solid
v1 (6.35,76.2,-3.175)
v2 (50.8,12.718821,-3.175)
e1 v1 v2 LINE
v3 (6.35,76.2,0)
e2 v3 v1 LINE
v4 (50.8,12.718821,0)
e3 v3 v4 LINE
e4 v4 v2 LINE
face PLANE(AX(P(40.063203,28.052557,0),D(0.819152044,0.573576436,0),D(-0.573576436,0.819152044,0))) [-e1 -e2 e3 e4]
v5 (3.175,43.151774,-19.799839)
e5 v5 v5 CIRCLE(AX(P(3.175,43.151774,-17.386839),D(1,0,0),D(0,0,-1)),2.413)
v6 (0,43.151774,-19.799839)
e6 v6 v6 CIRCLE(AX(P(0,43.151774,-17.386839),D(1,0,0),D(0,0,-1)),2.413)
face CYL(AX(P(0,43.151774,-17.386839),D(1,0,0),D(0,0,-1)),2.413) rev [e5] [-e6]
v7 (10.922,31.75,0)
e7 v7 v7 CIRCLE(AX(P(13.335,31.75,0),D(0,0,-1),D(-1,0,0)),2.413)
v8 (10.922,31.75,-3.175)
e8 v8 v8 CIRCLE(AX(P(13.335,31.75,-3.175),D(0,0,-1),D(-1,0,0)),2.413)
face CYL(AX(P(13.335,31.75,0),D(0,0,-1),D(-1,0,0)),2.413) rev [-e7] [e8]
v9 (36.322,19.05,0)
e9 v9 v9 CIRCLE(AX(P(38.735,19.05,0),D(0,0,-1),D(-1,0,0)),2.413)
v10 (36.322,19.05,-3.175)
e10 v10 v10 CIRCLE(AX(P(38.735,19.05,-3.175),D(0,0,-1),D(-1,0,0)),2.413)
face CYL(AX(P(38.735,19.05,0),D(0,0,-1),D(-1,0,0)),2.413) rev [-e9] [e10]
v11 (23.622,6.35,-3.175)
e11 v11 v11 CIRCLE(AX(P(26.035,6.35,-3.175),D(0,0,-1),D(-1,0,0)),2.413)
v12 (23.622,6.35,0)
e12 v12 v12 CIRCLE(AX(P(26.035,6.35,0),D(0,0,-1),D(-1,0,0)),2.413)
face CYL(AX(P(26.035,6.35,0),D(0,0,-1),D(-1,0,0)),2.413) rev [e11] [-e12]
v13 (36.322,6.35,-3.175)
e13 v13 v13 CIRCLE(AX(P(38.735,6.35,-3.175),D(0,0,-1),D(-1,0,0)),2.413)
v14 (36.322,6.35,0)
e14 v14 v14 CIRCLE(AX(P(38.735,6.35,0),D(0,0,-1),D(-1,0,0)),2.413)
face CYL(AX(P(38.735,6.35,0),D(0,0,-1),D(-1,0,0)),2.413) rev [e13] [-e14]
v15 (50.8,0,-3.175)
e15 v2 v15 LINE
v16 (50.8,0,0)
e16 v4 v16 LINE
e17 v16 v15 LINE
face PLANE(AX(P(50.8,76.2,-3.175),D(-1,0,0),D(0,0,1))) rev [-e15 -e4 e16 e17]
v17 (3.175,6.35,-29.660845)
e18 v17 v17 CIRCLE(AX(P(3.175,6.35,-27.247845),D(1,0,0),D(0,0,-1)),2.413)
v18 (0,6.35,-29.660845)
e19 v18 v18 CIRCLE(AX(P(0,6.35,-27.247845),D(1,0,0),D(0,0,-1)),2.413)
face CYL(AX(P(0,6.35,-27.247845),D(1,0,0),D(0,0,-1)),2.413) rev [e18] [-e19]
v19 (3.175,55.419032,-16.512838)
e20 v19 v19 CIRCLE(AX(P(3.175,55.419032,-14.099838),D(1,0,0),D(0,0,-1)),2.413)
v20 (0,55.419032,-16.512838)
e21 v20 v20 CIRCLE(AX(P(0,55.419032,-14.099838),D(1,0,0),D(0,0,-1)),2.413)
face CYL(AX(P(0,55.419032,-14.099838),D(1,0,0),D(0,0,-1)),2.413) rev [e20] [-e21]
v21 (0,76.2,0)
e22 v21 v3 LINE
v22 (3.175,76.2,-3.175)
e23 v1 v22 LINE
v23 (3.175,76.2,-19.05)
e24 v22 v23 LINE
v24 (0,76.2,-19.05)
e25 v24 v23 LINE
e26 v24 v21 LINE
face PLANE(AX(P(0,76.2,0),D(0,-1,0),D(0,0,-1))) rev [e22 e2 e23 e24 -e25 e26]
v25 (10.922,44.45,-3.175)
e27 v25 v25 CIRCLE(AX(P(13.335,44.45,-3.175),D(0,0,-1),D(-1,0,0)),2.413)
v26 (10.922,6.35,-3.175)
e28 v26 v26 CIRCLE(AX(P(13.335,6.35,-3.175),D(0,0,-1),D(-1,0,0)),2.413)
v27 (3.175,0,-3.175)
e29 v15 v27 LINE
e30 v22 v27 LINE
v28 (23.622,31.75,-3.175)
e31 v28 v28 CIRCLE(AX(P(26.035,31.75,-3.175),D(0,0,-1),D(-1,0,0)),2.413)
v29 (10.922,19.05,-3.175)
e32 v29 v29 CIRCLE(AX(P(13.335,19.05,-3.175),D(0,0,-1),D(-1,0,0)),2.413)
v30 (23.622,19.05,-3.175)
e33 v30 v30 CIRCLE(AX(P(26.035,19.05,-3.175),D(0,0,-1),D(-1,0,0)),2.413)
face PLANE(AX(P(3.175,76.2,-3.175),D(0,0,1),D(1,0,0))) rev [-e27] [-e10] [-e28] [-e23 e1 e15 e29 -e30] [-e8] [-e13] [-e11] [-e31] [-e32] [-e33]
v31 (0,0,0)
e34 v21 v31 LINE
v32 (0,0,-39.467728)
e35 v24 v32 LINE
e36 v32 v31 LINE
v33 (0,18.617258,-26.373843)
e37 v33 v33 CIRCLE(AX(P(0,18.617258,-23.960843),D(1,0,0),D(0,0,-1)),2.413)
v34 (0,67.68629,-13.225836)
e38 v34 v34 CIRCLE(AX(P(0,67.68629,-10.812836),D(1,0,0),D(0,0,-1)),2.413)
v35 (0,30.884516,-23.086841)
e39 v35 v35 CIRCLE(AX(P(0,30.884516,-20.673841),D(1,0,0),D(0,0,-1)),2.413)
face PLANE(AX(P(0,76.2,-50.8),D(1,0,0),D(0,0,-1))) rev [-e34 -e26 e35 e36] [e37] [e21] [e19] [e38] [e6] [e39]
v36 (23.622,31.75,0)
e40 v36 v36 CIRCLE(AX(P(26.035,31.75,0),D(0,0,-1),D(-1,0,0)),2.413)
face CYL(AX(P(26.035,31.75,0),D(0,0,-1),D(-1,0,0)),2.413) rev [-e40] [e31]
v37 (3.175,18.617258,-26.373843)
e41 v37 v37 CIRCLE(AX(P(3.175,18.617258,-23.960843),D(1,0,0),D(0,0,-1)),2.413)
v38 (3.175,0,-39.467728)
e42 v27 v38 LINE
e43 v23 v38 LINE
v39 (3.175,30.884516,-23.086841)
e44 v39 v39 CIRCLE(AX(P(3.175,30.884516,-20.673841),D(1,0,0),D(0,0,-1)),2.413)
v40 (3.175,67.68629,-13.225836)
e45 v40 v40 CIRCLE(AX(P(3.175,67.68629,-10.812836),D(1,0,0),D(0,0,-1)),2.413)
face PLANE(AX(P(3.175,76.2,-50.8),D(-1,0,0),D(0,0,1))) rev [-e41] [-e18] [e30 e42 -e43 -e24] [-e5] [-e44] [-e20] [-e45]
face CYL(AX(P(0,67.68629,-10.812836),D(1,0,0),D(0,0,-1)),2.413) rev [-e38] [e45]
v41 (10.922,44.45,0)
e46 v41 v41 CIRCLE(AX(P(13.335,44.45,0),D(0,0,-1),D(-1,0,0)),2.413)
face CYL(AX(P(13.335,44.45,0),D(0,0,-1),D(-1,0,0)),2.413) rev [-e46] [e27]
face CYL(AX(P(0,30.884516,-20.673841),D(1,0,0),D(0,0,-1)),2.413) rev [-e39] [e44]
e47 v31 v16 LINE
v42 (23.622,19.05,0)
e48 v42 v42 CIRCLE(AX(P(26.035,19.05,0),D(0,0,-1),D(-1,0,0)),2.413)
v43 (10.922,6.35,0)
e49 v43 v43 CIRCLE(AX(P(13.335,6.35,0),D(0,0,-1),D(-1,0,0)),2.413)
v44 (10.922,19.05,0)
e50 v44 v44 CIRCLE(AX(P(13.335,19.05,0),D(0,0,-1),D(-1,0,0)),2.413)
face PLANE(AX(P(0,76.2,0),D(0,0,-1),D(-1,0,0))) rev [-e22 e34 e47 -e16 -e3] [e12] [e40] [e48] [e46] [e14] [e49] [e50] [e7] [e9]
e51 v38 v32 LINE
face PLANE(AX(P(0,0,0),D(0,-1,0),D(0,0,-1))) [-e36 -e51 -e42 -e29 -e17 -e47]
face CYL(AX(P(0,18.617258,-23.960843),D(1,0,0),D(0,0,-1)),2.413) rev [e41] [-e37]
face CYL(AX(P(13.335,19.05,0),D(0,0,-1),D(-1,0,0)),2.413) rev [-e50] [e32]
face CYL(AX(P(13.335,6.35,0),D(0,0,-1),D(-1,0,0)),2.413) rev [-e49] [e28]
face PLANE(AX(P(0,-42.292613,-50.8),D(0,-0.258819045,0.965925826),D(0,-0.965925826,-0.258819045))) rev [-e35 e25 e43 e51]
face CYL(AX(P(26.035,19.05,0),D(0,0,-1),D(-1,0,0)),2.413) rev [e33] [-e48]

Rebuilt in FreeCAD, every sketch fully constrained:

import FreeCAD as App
import Part
import Sketcher

V = App.Vector
Q = App.Units.Quantity


def add_polygon(sketch, points):
    """Adds a closed chain of lines whose ends are joined by coincident constraints."""
    first, n = sketch.GeometryCount, len(points)
    for a, b in zip(points, points[1:] + points[:1]):
        sketch.addGeometry(Part.LineSegment(App.Vector(*a, 0), App.Vector(*b, 0)), False)
    for i in range(n):
        sketch.addConstraint(Sketcher.Constraint("Coincident", first + i, 2, first + (i + 1) % n, 1))

doc = App.newDocument("Part")
body = doc.addObject("PartDesign::Body", "Body")

# Sketch on XZ plane
sketch1 = body.newObject("Sketcher::SketchObject", "Sketch")
sketch1.AttachmentSupport = (doc.getObject("XZ_Plane"), [""])
sketch1.MapMode = "FlatFace"
add_polygon(sketch1, [(0, -50.8), (0, 0), (50.8, 0), (50.8, -3.2), (3.2, -3.2), (3.2, -50.8)])  # lines 0-5
sketch1.addConstraint([
    Sketcher.Constraint("Vertical", 0),
    Sketcher.Constraint("Horizontal", 1),
    Sketcher.Constraint("Vertical", 2),
    Sketcher.Constraint("Horizontal", 3),
    Sketcher.Constraint("Vertical", 4),
    Sketcher.Constraint("Horizontal", 5),
    Sketcher.Constraint("Coincident", 0, 2, -1, 1),
    Sketcher.Constraint("Equal", 1, 0),
    Sketcher.Constraint("Equal", 5, 2),
    Sketcher.Constraint("DistanceX", 1, 1, 1, 2, Q("2 in")),
    Sketcher.Constraint("DistanceX", 3, 2, 3, 1, Q("1.875 in")),
])
pad1 = body.newObject("PartDesign::Pad", "Pad")
pad1.Profile = sketch1
pad1.Length = Q("3 in")
pad1.Reversed = True

# Sketch on XY plane
sketch2 = body.newObject("Sketcher::SketchObject", "Sketch001")
sketch2.AttachmentSupport = (doc.getObject("XY_Plane"), [""])
sketch2.MapMode = "FlatFace"
sketch2.AttachmentOffset = App.Placement(V(0, 0, -0.125 * 25.4), App.Rotation())
add_polygon(sketch2, [(50.8, 12.7), (6.3, 76.2), (50.8, 76.2)])  # lines 0-2
sketch2.addGeometry(Part.Circle(V(13.3, 6.3, 0), V(0, 0, 1), 2.4), False)  # 3
sketch2.addGeometry(Part.Circle(V(26, 6.3, 0), V(0, 0, 1), 2.4), False)  # 4
sketch2.addGeometry(Part.Circle(V(13.3, 19.1, 0), V(0, 0, 1), 2.4), False)  # 5
sketch2.addGeometry(Part.Circle(V(13.3, 31.8, 0), V(0, 0, 1), 2.4), False)  # 6
sketch2.addGeometry(Part.Circle(V(13.3, 44.5, 0), V(0, 0, 1), 2.4), False)  # 7
sketch2.addGeometry(Part.Circle(V(26, 19.1, 0), V(0, 0, 1), 2.4), False)  # 8
sketch2.addGeometry(Part.Circle(V(26, 31.8, 0), V(0, 0, 1), 2.4), False)  # 9
sketch2.addGeometry(Part.Circle(V(38.7, 19.1, 0), V(0, 0, 1), 2.4), False)  # 10
sketch2.addGeometry(Part.Circle(V(38.7, 6.3, 0), V(0, 0, 1), 2.4), False)  # 11
sketch2.addConstraint([
    Sketcher.Constraint("Horizontal", 1),
    Sketcher.Constraint("Vertical", 2),
    Sketcher.Constraint("Equal", 3, 4),
    Sketcher.Constraint("Equal", 4, 5),
    Sketcher.Constraint("Equal", 5, 6),
    Sketcher.Constraint("Equal", 6, 7),
    Sketcher.Constraint("Equal", 7, 8),
    Sketcher.Constraint("Equal", 8, 9),
    Sketcher.Constraint("Equal", 9, 10),
    Sketcher.Constraint("Equal", 10, 11),
    Sketcher.Constraint("Horizontal", 3, 3, 4, 3),
    Sketcher.Constraint("Horizontal", 5, 3, 8, 3),
    Sketcher.Constraint("Horizontal", 6, 3, 9, 3),
    Sketcher.Constraint("Horizontal", 8, 3, 10, 3),
    Sketcher.Constraint("Horizontal", 4, 3, 11, 3),
    Sketcher.Constraint("Vertical", 3, 3, 5, 3),
    Sketcher.Constraint("Vertical", 5, 3, 6, 3),
    Sketcher.Constraint("Vertical", 6, 3, 7, 3),
    Sketcher.Constraint("Vertical", 4, 3, 8, 3),
    Sketcher.Constraint("Vertical", 8, 3, 9, 3),
    Sketcher.Constraint("Vertical", 10, 3, 11, 3),
    Sketcher.Constraint("Diameter", 3, Q("0.19 in")),
    Sketcher.Constraint("DistanceY", -1, 1, 0, 2, Q("3 in")),
    Sketcher.Constraint("DistanceX", -1, 1, 1, 2, Q("2 in")),
    Sketcher.Constraint("Angle", 0, Q("125 deg")),
    Sketcher.Constraint("DistanceY", 3, 3, 6, 3, Q("1 in")),
    Sketcher.Constraint("DistanceY", 5, 3, 7, 3, Q("1 in")),
    Sketcher.Constraint("DistanceX", 5, 3, 10, 3, Q("1 in")),
    Sketcher.Constraint("DistanceX", 1, 1, 1, 2, Q("1.75 in")),
    Sketcher.Constraint("DistanceX", 3, 3, 4, 3, Q("0.5 in")),
    Sketcher.Constraint("DistanceY", 3, 3, 5, 3, Q("0.5 in")),
    Sketcher.Constraint("DistanceY", -1, 1, 3, 3, Q("0.25 in")),
    Sketcher.Constraint("DistanceX", -1, 1, 3, 3, Q("0.525 in")),
])
pocket1 = body.newObject("PartDesign::Pocket", "Pocket")
pocket1.Profile = sketch2
pocket1.Length = Q("0.125 in")
pocket1.Reversed = True

# Sketch on YZ plane
sketch3 = body.newObject("Sketcher::SketchObject", "Sketch002")
sketch3.AttachmentSupport = (doc.getObject("YZ_Plane"), [""])
sketch3.MapMode = "FlatFace"
sketch3.AttachmentOffset = App.Placement(V(0, 0, 0.125 * 25.4), App.Rotation())
sketch3.addGeometry(Part.Circle(V(6.3, -27.2, 0), V(0, 0, 1), 2.4), False)  # 0
sketch3.addGeometry(Part.Circle(V(18.6, -24, 0), V(0, 0, 1), 2.4), False)  # 1
sketch3.addGeometry(Part.Circle(V(30.9, -20.7, 0), V(0, 0, 1), 2.4), False)  # 2
sketch3.addGeometry(Part.Circle(V(43.2, -17.4, 0), V(0, 0, 1), 2.4), False)  # 3
sketch3.addGeometry(Part.Circle(V(55.4, -14.1, 0), V(0, 0, 1), 2.4), False)  # 4
sketch3.addGeometry(Part.Circle(V(67.7, -10.8, 0), V(0, 0, 1), 2.4), False)  # 5
add_polygon(sketch3, [(76.2, -50.8), (76.2, -19.1), (-42.3, -50.8)])  # lines 6-8
sketch3.addConstraint([
    Sketcher.Constraint("Vertical", 6),
    Sketcher.Constraint("Horizontal", 8),
    Sketcher.Constraint("Equal", 0, 1),
    Sketcher.Constraint("Equal", 1, 2),
    Sketcher.Constraint("Equal", 2, 3),
    Sketcher.Constraint("Equal", 3, 4),
    Sketcher.Constraint("Equal", 4, 5),
    Sketcher.Constraint("Diameter", 0, Q("0.19 in")),
    Sketcher.Constraint("DistanceX", -1, 1, 6, 2, Q("3 in")),
    Sketcher.Constraint("DistanceY", 7, 2, -1, 1, Q("2 in")),
    Sketcher.Constraint("Angle", 7, Q("-165 deg")),
    Sketcher.Constraint("DistanceY", 6, 1, 6, 2, Q("1.25 in")),
    Sketcher.Constraint("DistanceX", -1, 1, 0, 3, Q("0.25 in")),
    Sketcher.Constraint("DistanceY", 0, 3, 1, 3, Q("3.287002 mm")),
    Sketcher.Constraint("DistanceY", 1, 3, 2, 3, Q("3.287002 mm")),
    Sketcher.Constraint("DistanceY", 2, 3, 3, 3, Q("3.287002 mm")),
    Sketcher.Constraint("DistanceY", 3, 3, 4, 3, Q("3.287002 mm")),
    Sketcher.Constraint("DistanceY", 4, 3, 5, 3, Q("3.287002 mm")),
    Sketcher.Constraint("DistanceY", 2, 3, -1, 1, Q("20.673841 mm")),
    Sketcher.Constraint("DistanceX", -1, 1, 4, 3, Q("55.419032 mm")),
    Sketcher.Constraint("DistanceX", -1, 1, 5, 3, Q("67.68629 mm")),
    Sketcher.Constraint("DistanceX", 1, 3, 5, 3, Q("49.069032 mm")),
    Sketcher.Constraint("DistanceX", 7, 2, 2, 3, Q("73.177129 mm")),
    Sketcher.Constraint("DistanceX", -1, 1, 3, 3, Q("43.151774 mm")),
])
pocket2 = body.newObject("PartDesign::Pocket", "Pocket001")
pocket2.Profile = sketch3
pocket2.Type = "ThroughAll"

doc.recompute()
